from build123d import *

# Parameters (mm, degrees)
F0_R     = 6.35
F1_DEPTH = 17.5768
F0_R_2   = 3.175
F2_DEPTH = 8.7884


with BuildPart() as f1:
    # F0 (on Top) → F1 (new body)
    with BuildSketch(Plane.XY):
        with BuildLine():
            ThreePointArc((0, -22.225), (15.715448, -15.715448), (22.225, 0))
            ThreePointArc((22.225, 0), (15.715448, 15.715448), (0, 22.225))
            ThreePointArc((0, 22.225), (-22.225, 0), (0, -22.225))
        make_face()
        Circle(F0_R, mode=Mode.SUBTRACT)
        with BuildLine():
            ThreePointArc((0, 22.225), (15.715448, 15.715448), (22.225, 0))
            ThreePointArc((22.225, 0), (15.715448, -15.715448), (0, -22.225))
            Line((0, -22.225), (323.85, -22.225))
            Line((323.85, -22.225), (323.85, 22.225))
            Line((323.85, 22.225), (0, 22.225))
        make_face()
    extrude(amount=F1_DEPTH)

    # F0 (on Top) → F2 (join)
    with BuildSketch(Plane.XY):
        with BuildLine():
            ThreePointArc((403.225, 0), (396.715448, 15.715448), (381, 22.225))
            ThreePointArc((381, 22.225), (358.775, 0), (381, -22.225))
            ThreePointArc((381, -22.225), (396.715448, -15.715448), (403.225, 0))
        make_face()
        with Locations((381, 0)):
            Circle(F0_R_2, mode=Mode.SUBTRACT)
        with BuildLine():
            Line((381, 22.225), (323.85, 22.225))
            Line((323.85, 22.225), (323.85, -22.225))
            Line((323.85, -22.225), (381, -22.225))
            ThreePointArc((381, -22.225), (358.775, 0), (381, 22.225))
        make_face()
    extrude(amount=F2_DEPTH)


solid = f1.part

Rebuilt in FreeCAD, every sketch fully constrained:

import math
import FreeCAD as App
import Part
import Sketcher

V = App.Vector
Q = App.Units.Quantity

doc = App.newDocument("Part")
body = doc.addObject("PartDesign::Body", "Body")

sketch1 = body.newObject("Sketcher::SketchObject", "Sketch")
sketch1.AttachmentSupport = (doc.getObject("XY_Plane"), [""])
sketch1.MapMode = "FlatFace"
sketch1.addGeometry(Part.ArcOfCircle(Part.Circle(V(0, 0, 0), V(0, 0, 1), 22.225), math.radians(90), math.radians(270)), False)
sketch1.addGeometry(Part.LineSegment(V(0, -22.225, 0), V(323.85, -22.225, 0)), False)
sketch1.addGeometry(Part.LineSegment(V(323.85, -22.225, 0), V(323.85, 22.225, 0)), False)
sketch1.addGeometry(Part.LineSegment(V(323.85, 22.225, 0), V(0, 22.225, 0)), False)
sketch1.addGeometry(Part.Circle(V(0, 0, 0), V(0, 0, 1), 6.35), False)
sketch1.addConstraint(Sketcher.Constraint("Tangent", 0, 2, 1, 1))
sketch1.addConstraint(Sketcher.Constraint("Coincident", 1, 2, 2, 1))
sketch1.addConstraint(Sketcher.Constraint("Coincident", 2, 2, 3, 1))
sketch1.addConstraint(Sketcher.Constraint("Tangent", 3, 2, 0, 1))
sketch1.addConstraint(Sketcher.Constraint("Horizontal", 1))
sketch1.addConstraint(Sketcher.Constraint("Vertical", 2))
sketch1.addConstraint(Sketcher.Constraint("Horizontal", 3))
sketch1.addConstraint(Sketcher.Constraint("Coincident", 0, 3, -1, 1))
sketch1.addConstraint(Sketcher.Constraint("Coincident", 4, 3, -1, 1))
sketch1.addConstraint(Sketcher.Constraint("Diameter", 4, Q("0.5 in")))
sketch1.addConstraint(Sketcher.Constraint("Radius", 0, Q("0.875 in")))
sketch1.addConstraint(Sketcher.Constraint("DistanceX", 1, 1, 1, 2, Q("12.75 in")))
pad1 = body.newObject("PartDesign::Pad", "Pad")
pad1.Profile = sketch1
pad1.Length = Q("0.692 in")

sketch2 = body.newObject("Sketcher::SketchObject", "Sketch001")
sketch2.AttachmentSupport = (doc.getObject("XY_Plane"), [""])
sketch2.MapMode = "FlatFace"
sketch2.addGeometry(Part.ArcOfCircle(Part.Circle(V(380.999999, -0.000001, 0), V(0, 0, 1), 22.225001), math.radians(0.000002), math.radians(89.999998)), False)
sketch2.addGeometry(Part.LineSegment(V(381, 22.225, 0), V(323.85, 22.225, 0)), False)
sketch2.addGeometry(Part.LineSegment(V(323.85, 22.225, 0), V(323.85, -22.225, 0)), False)
sketch2.addGeometry(Part.LineSegment(V(323.85, -22.225, 0), V(381, -22.225, 0)), False)
sketch2.addGeometry(Part.ArcOfCircle(Part.Circle(V(380.999999, 0.000001, 0), V(0, 0, 1), 22.225001), math.radians(-89.999998), math.radians(-0.000002)), False)
sketch2.addGeometry(Part.Circle(V(381, 0, 0), V(0, 0, 1), 3.175), False)
sketch2.addConstraint(Sketcher.Constraint("Tangent", 0, 2, 1, 1))
sketch2.addConstraint(Sketcher.Constraint("Coincident", 1, 2, 2, 1))
sketch2.addConstraint(Sketcher.Constraint("Coincident", 2, 2, 3, 1))
sketch2.addConstraint(Sketcher.Constraint("Tangent", 3, 2, 4, 1))
sketch2.addConstraint(Sketcher.Constraint("Tangent", 4, 2, 0, 1))
sketch2.addConstraint(Sketcher.Constraint("Horizontal", 1))
sketch2.addConstraint(Sketcher.Constraint("Vertical", 2))
sketch2.addConstraint(Sketcher.Constraint("Horizontal", 3))
sketch2.addConstraint(Sketcher.Constraint("Coincident", 5, 3, 0, 3))
sketch2.addConstraint(Sketcher.Constraint("Equal", 0, 4))
sketch2.addConstraint(Sketcher.Constraint("PointOnObject", 0, 3, -1))
sketch2.addConstraint(Sketcher.Constraint("PointOnObject", 4, 2, -1))
sketch2.addConstraint(Sketcher.Constraint("Diameter", 5, Q("0.25 in")))
sketch2.addConstraint(Sketcher.Constraint("DistanceX", -1, 1, 0, 3, Q("15 in")))
sketch2.addConstraint(Sketcher.Constraint("Radius", 0, Q("0.875 in")))
sketch2.addConstraint(Sketcher.Constraint("DistanceX", 1, 2, 1, 1, Q("2.25 in")))
pad2 = body.newObject("PartDesign::Pad", "Pad001")
pad2.Profile = sketch2
pad2.Length = Q("0.346 in")

doc.recompute()
